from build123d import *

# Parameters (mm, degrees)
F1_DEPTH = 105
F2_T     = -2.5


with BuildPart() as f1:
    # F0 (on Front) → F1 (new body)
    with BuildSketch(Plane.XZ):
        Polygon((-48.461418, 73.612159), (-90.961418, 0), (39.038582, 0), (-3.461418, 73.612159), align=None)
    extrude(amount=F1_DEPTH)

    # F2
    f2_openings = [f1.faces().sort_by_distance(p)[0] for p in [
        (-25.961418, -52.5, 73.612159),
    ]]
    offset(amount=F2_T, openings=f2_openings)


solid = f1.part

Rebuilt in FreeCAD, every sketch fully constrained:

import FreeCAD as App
import Part
import Sketcher
from FreeCAD import Vector
Q = App.Units.Quantity


def faces_at(feature, points):
    """Names of the faces that lie closest to the given points."""
    faces = feature.Shape.Faces
    near = lambda p: min(range(len(faces)), key=lambda i: faces[i].distToShape(Part.Vertex(*p))[0])
    return sorted({f"Face{near(p) + 1}" for p in points})

doc = App.newDocument("Part")
body = doc.addObject("PartDesign::Body", "Body")

sketch1 = doc.addObject("Sketcher::SketchObject", "Sketch")
body.addObject(sketch1)
sketch1.AttachmentSupport = (doc.XZ_Plane, [""])
sketch1.MapMode = "FlatFace"
sketch1.addGeometry(Part.LineSegment(Vector(-48, 74, 0), Vector(-91, 0, 0)), False)
sketch1.addGeometry(Part.LineSegment(Vector(-91, 0, 0), Vector(39, 0, 0)), False)
sketch1.addGeometry(Part.LineSegment(Vector(39, 0, 0), Vector(-3, 74, 0)), False)
sketch1.addGeometry(Part.LineSegment(Vector(-3, 74, 0), Vector(-48, 74, 0)), False)
sketch1.addConstraint(Sketcher.Constraint("Coincident", 0, 2, 1, 1))
sketch1.addConstraint(Sketcher.Constraint("Coincident", 1, 2, 2, 1))
sketch1.addConstraint(Sketcher.Constraint("Coincident", 2, 2, 3, 1))
sketch1.addConstraint(Sketcher.Constraint("Coincident", 3, 2, 0, 1))
sketch1.addConstraint(Sketcher.Constraint("Horizontal", 1))
sketch1.addConstraint(Sketcher.Constraint("Horizontal", 3))
sketch1.addConstraint(Sketcher.Constraint("PointOnObject", 0, 2, -1))
sketch1.addConstraint(Sketcher.Constraint("Equal", 0, 2))
sketch1.addConstraint(Sketcher.Constraint("DistanceX", 1, 1, 1, 2, Q("130 mm")))
sketch1.addConstraint(Sketcher.Constraint("DistanceX", 3, 2, 3, 1, Q("45 mm")))
sketch1.addConstraint(Sketcher.Constraint("Angle", 0, Q("-120 deg")))
sketch1.addConstraint(Sketcher.Constraint("DistanceX", -1, 1, 1, 2, Q("39.038582 mm")))
pad1 = doc.addObject("PartDesign::Pad", "Pad")
body.addObject(pad1)
pad1.Profile = sketch1
pad1.Length = 105
doc.recompute()

thickness = doc.addObject("PartDesign::Thickness", "Thickness")
body.addObject(thickness)
thickness.Base = (pad1, faces_at(pad1, [(-25.961, -52.5, 73.612)]))
thickness.Value = 2.5
thickness.Reversed = True
thickness.Join = "Arc"

doc.recompute()
